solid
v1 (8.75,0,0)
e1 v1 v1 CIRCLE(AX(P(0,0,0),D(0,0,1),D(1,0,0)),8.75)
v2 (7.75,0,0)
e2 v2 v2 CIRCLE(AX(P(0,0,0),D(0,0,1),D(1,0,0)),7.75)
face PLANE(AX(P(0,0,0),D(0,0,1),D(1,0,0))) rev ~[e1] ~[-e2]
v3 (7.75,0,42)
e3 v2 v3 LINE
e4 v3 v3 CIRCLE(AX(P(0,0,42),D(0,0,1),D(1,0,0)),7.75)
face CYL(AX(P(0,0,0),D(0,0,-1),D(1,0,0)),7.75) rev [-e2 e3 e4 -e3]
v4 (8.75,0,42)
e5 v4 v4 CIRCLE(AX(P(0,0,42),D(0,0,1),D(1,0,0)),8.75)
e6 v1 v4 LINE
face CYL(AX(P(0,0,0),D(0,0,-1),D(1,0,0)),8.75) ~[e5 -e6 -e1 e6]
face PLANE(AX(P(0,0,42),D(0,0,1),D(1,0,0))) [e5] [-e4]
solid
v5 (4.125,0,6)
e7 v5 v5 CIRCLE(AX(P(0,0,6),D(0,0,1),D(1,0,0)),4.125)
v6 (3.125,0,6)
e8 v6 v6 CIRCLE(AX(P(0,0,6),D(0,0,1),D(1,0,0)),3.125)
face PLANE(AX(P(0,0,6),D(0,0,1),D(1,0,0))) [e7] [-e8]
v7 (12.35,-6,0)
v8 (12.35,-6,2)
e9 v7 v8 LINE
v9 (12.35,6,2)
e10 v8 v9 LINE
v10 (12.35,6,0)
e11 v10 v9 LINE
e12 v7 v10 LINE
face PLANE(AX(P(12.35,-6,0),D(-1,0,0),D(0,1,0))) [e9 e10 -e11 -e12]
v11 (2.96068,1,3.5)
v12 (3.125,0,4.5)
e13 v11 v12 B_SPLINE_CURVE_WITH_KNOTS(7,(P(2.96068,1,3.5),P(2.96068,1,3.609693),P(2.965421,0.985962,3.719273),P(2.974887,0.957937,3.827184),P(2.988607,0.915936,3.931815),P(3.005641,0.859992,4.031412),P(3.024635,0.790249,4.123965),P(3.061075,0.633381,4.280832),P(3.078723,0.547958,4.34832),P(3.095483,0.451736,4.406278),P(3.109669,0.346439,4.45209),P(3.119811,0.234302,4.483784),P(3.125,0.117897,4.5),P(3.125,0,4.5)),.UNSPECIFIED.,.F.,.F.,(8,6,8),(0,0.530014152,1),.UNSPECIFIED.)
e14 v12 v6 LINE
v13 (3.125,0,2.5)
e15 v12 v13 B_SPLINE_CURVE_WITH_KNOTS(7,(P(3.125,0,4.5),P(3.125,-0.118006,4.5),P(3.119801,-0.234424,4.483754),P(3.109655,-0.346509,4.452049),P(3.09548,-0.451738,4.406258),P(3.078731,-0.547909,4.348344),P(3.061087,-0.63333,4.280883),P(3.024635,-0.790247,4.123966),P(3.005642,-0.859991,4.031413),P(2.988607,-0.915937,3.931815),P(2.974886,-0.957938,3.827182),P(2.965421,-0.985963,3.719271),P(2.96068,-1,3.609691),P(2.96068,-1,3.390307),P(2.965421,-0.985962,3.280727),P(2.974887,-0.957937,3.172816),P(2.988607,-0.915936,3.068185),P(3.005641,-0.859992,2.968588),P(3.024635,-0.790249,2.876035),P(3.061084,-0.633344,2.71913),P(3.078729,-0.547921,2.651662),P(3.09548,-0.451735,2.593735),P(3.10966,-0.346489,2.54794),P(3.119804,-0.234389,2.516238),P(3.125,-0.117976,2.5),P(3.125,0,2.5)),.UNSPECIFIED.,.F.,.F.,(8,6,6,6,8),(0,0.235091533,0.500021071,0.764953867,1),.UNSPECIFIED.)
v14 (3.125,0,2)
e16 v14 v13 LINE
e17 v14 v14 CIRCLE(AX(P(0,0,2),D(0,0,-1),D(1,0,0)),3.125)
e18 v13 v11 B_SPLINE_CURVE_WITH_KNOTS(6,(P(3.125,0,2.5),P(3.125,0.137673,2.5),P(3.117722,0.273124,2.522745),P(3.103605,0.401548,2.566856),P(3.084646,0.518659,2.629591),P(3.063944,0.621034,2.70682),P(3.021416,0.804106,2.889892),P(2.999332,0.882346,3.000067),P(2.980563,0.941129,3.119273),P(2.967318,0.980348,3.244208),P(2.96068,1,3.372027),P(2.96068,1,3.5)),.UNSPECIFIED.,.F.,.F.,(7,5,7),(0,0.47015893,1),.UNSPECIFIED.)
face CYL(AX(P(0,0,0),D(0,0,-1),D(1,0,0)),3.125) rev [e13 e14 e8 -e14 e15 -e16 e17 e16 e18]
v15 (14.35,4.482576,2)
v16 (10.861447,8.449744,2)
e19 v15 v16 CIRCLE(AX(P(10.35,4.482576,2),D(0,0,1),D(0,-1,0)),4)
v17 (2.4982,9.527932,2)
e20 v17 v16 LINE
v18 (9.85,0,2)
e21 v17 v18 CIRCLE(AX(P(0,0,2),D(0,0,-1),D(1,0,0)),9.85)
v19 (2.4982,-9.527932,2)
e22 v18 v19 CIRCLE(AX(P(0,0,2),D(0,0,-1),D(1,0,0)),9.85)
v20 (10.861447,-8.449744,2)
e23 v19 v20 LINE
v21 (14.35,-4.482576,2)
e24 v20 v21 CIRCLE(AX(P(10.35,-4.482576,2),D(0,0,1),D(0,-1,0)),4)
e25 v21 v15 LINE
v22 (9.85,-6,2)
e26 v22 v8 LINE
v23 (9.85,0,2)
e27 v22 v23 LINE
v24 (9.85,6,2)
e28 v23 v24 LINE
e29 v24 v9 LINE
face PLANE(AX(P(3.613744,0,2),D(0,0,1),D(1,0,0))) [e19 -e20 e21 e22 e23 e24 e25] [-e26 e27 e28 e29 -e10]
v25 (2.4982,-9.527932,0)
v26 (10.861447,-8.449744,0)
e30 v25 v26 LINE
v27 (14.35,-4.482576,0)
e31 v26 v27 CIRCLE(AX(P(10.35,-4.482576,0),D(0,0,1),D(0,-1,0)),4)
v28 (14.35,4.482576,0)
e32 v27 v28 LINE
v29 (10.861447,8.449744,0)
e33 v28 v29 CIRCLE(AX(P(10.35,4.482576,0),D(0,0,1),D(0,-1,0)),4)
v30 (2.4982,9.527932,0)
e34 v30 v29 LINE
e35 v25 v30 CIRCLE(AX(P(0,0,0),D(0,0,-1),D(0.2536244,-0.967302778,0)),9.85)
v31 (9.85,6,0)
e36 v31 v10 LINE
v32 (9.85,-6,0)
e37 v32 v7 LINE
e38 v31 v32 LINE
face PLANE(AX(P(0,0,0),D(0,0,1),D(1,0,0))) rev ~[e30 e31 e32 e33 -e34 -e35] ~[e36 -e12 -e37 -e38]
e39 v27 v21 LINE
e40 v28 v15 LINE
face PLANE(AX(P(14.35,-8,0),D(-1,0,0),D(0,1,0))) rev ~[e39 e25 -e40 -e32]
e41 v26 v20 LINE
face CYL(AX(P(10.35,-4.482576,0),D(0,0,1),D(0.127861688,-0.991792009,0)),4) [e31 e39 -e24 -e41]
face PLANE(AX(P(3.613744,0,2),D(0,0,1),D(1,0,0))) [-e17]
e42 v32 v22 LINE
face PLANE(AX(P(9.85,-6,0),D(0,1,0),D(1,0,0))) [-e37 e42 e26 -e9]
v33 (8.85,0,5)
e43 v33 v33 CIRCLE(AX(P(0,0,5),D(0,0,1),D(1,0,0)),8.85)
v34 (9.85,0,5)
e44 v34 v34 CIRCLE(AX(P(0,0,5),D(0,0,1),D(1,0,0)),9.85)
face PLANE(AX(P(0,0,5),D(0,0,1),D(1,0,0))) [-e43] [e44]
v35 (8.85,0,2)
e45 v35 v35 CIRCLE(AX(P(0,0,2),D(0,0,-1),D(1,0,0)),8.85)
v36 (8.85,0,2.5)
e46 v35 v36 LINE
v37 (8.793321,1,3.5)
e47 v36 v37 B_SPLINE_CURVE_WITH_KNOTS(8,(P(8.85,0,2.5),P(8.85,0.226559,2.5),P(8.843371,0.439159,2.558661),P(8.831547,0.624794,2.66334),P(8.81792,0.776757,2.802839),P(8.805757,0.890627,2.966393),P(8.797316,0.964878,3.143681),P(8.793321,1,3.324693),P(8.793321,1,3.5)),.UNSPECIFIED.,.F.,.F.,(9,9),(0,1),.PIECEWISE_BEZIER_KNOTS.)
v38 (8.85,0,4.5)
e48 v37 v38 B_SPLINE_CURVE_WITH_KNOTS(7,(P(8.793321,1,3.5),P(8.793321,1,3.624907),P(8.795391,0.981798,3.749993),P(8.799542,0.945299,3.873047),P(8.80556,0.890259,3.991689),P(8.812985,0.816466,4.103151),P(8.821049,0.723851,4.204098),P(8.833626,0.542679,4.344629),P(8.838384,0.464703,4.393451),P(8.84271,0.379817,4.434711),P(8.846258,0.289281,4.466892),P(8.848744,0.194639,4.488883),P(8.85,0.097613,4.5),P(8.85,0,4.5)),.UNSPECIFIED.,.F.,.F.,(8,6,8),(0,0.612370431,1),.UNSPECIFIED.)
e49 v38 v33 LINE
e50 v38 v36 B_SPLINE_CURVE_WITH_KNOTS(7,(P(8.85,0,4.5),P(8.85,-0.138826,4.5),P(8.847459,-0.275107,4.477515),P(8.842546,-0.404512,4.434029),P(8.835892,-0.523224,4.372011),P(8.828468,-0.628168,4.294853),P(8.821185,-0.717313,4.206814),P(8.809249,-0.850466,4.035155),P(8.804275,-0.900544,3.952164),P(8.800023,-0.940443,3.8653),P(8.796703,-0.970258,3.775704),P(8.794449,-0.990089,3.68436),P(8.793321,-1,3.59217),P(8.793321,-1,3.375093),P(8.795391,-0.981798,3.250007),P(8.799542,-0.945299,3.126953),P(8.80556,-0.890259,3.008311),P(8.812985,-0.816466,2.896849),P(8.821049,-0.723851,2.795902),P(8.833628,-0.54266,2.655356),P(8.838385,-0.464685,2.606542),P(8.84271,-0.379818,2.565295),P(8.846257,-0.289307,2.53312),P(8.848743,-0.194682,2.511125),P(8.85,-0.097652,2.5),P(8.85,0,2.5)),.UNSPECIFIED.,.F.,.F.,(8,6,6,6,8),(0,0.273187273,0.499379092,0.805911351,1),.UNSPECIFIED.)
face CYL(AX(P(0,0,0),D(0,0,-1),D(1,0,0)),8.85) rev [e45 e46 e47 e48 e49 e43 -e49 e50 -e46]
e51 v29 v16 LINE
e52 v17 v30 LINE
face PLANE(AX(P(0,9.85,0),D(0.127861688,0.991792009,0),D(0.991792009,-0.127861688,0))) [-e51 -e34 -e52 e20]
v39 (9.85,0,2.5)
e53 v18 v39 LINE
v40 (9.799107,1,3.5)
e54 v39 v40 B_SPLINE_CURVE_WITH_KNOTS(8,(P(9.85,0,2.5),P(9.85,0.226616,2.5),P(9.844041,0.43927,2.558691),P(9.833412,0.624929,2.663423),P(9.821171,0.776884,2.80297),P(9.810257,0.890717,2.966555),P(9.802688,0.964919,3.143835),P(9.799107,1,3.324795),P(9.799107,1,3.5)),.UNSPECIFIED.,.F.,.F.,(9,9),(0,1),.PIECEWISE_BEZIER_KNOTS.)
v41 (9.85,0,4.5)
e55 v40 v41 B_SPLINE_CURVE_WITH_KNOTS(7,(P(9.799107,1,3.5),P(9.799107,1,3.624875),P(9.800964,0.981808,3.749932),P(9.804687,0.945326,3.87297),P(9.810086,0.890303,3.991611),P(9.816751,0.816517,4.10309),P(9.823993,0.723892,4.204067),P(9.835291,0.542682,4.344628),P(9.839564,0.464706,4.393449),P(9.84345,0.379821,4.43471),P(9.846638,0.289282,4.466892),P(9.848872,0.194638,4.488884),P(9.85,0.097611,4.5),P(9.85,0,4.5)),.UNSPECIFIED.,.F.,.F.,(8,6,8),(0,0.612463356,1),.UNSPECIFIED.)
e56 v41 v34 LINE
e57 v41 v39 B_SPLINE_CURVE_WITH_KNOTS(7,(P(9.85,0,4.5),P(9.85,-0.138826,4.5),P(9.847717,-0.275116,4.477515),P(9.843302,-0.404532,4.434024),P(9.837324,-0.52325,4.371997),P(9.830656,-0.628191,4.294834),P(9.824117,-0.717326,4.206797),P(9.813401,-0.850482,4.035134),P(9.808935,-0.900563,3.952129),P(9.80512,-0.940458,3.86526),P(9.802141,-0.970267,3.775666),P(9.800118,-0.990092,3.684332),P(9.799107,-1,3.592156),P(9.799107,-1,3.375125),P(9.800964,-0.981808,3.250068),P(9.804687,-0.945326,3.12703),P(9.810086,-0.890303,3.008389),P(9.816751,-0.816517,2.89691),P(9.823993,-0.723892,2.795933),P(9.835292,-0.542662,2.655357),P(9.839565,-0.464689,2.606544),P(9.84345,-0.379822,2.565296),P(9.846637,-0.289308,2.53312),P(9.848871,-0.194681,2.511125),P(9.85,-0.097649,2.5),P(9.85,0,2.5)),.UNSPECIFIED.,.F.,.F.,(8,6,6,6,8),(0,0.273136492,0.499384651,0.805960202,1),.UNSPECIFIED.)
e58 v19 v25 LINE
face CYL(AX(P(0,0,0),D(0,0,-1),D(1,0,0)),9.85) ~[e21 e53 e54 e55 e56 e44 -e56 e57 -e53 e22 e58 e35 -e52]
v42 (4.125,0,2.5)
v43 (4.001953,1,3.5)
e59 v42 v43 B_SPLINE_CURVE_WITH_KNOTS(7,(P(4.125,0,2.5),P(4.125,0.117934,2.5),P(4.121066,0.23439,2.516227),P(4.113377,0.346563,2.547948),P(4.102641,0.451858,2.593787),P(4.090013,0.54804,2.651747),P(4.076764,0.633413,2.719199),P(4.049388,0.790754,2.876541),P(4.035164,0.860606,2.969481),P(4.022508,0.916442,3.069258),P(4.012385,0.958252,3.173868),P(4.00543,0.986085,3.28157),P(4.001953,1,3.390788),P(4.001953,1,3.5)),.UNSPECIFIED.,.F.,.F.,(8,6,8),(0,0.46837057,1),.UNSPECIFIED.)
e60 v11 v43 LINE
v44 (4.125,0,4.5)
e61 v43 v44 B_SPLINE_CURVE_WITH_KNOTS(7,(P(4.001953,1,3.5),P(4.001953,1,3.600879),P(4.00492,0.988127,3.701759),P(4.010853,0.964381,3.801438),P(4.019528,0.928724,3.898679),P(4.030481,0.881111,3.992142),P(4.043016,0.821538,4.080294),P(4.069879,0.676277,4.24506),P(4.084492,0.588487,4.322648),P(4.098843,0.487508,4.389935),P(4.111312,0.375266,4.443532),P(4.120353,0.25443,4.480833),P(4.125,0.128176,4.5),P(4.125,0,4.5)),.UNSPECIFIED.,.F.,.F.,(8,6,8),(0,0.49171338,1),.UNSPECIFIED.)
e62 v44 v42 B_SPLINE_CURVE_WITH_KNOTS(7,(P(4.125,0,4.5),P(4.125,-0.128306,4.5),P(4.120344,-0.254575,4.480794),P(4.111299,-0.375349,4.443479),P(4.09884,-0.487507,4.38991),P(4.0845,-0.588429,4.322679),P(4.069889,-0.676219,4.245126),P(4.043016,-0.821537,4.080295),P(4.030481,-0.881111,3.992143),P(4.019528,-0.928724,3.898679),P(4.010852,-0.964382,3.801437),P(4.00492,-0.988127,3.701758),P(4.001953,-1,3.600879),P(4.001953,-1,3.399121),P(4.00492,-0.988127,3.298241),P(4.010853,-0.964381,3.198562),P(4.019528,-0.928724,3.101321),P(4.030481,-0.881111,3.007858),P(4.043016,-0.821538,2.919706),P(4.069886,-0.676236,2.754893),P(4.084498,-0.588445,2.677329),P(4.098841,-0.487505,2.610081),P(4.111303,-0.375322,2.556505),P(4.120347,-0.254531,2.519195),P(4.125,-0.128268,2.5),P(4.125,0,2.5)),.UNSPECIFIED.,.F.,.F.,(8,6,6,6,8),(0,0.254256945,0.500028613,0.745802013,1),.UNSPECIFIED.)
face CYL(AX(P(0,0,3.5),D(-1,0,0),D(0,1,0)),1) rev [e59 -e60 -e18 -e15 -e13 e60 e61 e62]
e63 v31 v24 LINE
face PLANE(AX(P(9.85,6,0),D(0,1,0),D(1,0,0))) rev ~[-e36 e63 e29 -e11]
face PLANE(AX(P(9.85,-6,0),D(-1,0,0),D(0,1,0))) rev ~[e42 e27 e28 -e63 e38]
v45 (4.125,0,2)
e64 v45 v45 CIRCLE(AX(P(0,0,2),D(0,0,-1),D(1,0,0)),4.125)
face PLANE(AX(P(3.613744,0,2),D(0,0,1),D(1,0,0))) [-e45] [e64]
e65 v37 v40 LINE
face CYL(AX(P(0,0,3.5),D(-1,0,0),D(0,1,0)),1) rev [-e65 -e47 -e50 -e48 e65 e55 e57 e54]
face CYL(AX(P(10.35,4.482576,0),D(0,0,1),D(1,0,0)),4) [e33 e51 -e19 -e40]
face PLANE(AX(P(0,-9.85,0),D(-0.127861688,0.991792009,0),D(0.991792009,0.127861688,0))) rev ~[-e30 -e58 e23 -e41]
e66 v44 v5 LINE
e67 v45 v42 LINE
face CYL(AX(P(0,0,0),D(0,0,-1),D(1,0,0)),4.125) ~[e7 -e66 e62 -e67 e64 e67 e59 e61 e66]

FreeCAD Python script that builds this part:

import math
import FreeCAD as App
import Part
import Sketcher
from FreeCAD import Vector


def edges_at(feature, points):
    """Names of the edges that pass closest to the given points."""
    edges = feature.Shape.Edges
    near = lambda p: min(range(len(edges)), key=lambda i: edges[i].distToShape(Part.Vertex(*p))[0])
    return sorted({f"Edge{near(p) + 1}" for p in points})

doc = App.newDocument("Part")
body = doc.addObject("PartDesign::Body", "Body")

sketch1 = body.newObject("Sketcher::SketchObject", "Sketch")
sketch1.AttachmentSupport = (doc.getObject("XY_Plane"), [""])
sketch1.MapMode = "FlatFace"
sketch1.addGeometry(Part.Circle(Vector(0, 0, 0), Vector(0, 0, 1), 9), False)
sketch1.addGeometry(Part.Circle(Vector(0, 0, 0), Vector(0, 0, 1), 8), False)
sketch1.addConstraint(Sketcher.Constraint("Coincident", 0, 3, -1, 1))
sketch1.addConstraint(Sketcher.Constraint("Coincident", 1, 3, -1, 1))
sketch1.addConstraint(Sketcher.Constraint("Diameter", 0, 17.5))
sketch1.addConstraint(Sketcher.Constraint("Diameter", 1, 15.5))
pad1 = body.newObject("PartDesign::Pad", "Pad")
pad1.Profile = sketch1
pad1.Length = 42
body2 = doc.addObject("PartDesign::Body", "Body001")

sketch2 = body2.newObject("Sketcher::SketchObject", "Sketch001")
sketch2.AttachmentSupport = (doc.getObject("XY_Plane001"), [""])
sketch2.MapMode = "FlatFace"
sketch2.addGeometry(Part.Circle(Vector(0, 0, 0), Vector(0, 0, 1), 10), False)
sketch2.addGeometry(Part.Circle(Vector(0, 0, 0), Vector(0, 0, 1), 9), False)
sketch2.addConstraint(Sketcher.Constraint("Coincident", 0, 3, -1, 1))
sketch2.addConstraint(Sketcher.Constraint("Coincident", 1, 3, -1, 1))
sketch2.addConstraint(Sketcher.Constraint("Diameter", 0, 19.7))
sketch2.addConstraint(Sketcher.Constraint("Diameter", 1, 17.7))
pad2 = body2.newObject("PartDesign::Pad", "Pad001")
pad2.Profile = sketch2
pad2.Length = 5

sketch3 = body2.newObject("Sketcher::SketchObject", "Sketch002")
sketch3.AttachmentSupport = (doc.getObject("XY_Plane001"), [""])
sketch3.MapMode = "FlatFace"
sketch3.addGeometry(Part.LineSegment(Vector(14.3, -8, 0), Vector(14.3, 8, 0)), False)
sketch3.addGeometry(Part.LineSegment(Vector(14.3, 8, 0), Vector(0, 9.8, 0)), False)
sketch3.addGeometry(Part.ArcOfCircle(Part.Circle(Vector(0, 0, 0), Vector(0, 0, 1), 9.8), math.radians(90), math.radians(270)), False)
sketch3.addGeometry(Part.LineSegment(Vector(0, -9.8, 0), Vector(14.3, -8, 0)), False)
sketch3.addGeometry(Part.LineSegment(Vector(12.3, -6, 0), Vector(9.8, -6, 0)), False)
sketch3.addGeometry(Part.LineSegment(Vector(9.8, -6, 0), Vector(9.8, 6, 0)), False)
sketch3.addGeometry(Part.LineSegment(Vector(9.8, 6, 0), Vector(12.3, 6, 0)), False)
sketch3.addGeometry(Part.LineSegment(Vector(12.3, 6, 0), Vector(12.3, -6, 0)), False)
sketch3.addConstraint(Sketcher.Constraint("Coincident", 0, 2, 1, 1))
sketch3.addConstraint(Sketcher.Constraint("Coincident", 1, 2, 2, 1))
sketch3.addConstraint(Sketcher.Constraint("Coincident", 2, 2, 3, 1))
sketch3.addConstraint(Sketcher.Constraint("Coincident", 3, 2, 0, 1))
sketch3.addConstraint(Sketcher.Constraint("Coincident", 4, 2, 5, 1))
sketch3.addConstraint(Sketcher.Constraint("Coincident", 5, 2, 6, 1))
sketch3.addConstraint(Sketcher.Constraint("Coincident", 6, 2, 7, 1))
sketch3.addConstraint(Sketcher.Constraint("Coincident", 7, 2, 4, 1))
sketch3.addConstraint(Sketcher.Constraint("Vertical", 0))
sketch3.addConstraint(Sketcher.Constraint("Horizontal", 4))
sketch3.addConstraint(Sketcher.Constraint("Vertical", 5))
sketch3.addConstraint(Sketcher.Constraint("Horizontal", 6))
sketch3.addConstraint(Sketcher.Constraint("Vertical", 7))
sketch3.addConstraint(Sketcher.Constraint("Coincident", 2, 3, -1, 1))
sketch3.addConstraint(Sketcher.Constraint("PointOnObject", 1, 2, -2))
sketch3.addConstraint(Sketcher.Constraint("PointOnObject", 2, 2, -2))
sketch3.addConstraint(Sketcher.Constraint("Equal", 1, 3))
sketch3.addConstraint(Sketcher.Constraint("DistanceY", 0, 1, 0, 2, 16.0))
sketch3.addConstraint(Sketcher.Constraint("DistanceY", 5, 1, 5, 2, 12.0))
sketch3.addConstraint(Sketcher.Constraint("Radius", 2, 9.85))
sketch3.addConstraint(Sketcher.Constraint("DistanceX", 4, 2, 4, 1, 2.5))
sketch3.addConstraint(Sketcher.Constraint("DistanceY", 4, 2, -1, 1, 6.0))
sketch3.addConstraint(Sketcher.Constraint("DistanceX", 6, 2, 0, 2, 2.0))
sketch3.addConstraint(Sketcher.Constraint("DistanceX", -1, 1, 0, 2, 14.35))
pad3 = body2.newObject("PartDesign::Pad", "Pad002")
pad3.Profile = sketch3
pad3.Length = 2

sketch4 = body2.newObject("Sketcher::SketchObject", "Sketch003")
sketch4.AttachmentSupport = (doc.getObject("XY_Plane001"), [""])
sketch4.MapMode = "FlatFace"
sketch4.addGeometry(Part.Circle(Vector(0, 0, 0), Vector(0, 0, 1), 4.1), False)
sketch4.addGeometry(Part.Circle(Vector(0, 0, 0), Vector(0, 0, 1), 3.1), False)
sketch4.addConstraint(Sketcher.Constraint("Coincident", 0, 3, -1, 1))
sketch4.addConstraint(Sketcher.Constraint("Coincident", 1, 3, -1, 1))
sketch4.addConstraint(Sketcher.Constraint("Diameter", 0, 8.25))
sketch4.addConstraint(Sketcher.Constraint("Diameter", 1, 6.25))
pad4 = body2.newObject("PartDesign::Pad", "Pad003")
pad4.Profile = sketch4
pad4.Length = 6
doc.recompute()

fillet = body2.newObject("PartDesign::Fillet", "Fillet")
fillet.Base = (pad4, edges_at(pad4, [(14.35, 8, 1), (14.35, -8, 1)]))
fillet.Radius = 4

sketch5 = body2.newObject("Sketcher::SketchObject", "Sketch004")
sketch5.AttachmentSupport = (doc.getObject("YZ_Plane001"), [""])
sketch5.MapMode = "FlatFace"
sketch5.addGeometry(Part.Circle(Vector(0, 3.5, 0), Vector(0, 0, 1), 1), False)
sketch5.addConstraint(Sketcher.Constraint("PointOnObject", 0, 3, -2))
sketch5.addConstraint(Sketcher.Constraint("Diameter", 0, 2.0))
sketch5.addConstraint(Sketcher.Constraint("DistanceY", -1, 1, 0, 3, 3.5))
pocket1 = body2.newObject("PartDesign::Pocket", "Pocket")
pocket1.Profile = sketch5
pocket1.Type = "ThroughAll"
pocket1.Reversed = True

doc.recompute()
